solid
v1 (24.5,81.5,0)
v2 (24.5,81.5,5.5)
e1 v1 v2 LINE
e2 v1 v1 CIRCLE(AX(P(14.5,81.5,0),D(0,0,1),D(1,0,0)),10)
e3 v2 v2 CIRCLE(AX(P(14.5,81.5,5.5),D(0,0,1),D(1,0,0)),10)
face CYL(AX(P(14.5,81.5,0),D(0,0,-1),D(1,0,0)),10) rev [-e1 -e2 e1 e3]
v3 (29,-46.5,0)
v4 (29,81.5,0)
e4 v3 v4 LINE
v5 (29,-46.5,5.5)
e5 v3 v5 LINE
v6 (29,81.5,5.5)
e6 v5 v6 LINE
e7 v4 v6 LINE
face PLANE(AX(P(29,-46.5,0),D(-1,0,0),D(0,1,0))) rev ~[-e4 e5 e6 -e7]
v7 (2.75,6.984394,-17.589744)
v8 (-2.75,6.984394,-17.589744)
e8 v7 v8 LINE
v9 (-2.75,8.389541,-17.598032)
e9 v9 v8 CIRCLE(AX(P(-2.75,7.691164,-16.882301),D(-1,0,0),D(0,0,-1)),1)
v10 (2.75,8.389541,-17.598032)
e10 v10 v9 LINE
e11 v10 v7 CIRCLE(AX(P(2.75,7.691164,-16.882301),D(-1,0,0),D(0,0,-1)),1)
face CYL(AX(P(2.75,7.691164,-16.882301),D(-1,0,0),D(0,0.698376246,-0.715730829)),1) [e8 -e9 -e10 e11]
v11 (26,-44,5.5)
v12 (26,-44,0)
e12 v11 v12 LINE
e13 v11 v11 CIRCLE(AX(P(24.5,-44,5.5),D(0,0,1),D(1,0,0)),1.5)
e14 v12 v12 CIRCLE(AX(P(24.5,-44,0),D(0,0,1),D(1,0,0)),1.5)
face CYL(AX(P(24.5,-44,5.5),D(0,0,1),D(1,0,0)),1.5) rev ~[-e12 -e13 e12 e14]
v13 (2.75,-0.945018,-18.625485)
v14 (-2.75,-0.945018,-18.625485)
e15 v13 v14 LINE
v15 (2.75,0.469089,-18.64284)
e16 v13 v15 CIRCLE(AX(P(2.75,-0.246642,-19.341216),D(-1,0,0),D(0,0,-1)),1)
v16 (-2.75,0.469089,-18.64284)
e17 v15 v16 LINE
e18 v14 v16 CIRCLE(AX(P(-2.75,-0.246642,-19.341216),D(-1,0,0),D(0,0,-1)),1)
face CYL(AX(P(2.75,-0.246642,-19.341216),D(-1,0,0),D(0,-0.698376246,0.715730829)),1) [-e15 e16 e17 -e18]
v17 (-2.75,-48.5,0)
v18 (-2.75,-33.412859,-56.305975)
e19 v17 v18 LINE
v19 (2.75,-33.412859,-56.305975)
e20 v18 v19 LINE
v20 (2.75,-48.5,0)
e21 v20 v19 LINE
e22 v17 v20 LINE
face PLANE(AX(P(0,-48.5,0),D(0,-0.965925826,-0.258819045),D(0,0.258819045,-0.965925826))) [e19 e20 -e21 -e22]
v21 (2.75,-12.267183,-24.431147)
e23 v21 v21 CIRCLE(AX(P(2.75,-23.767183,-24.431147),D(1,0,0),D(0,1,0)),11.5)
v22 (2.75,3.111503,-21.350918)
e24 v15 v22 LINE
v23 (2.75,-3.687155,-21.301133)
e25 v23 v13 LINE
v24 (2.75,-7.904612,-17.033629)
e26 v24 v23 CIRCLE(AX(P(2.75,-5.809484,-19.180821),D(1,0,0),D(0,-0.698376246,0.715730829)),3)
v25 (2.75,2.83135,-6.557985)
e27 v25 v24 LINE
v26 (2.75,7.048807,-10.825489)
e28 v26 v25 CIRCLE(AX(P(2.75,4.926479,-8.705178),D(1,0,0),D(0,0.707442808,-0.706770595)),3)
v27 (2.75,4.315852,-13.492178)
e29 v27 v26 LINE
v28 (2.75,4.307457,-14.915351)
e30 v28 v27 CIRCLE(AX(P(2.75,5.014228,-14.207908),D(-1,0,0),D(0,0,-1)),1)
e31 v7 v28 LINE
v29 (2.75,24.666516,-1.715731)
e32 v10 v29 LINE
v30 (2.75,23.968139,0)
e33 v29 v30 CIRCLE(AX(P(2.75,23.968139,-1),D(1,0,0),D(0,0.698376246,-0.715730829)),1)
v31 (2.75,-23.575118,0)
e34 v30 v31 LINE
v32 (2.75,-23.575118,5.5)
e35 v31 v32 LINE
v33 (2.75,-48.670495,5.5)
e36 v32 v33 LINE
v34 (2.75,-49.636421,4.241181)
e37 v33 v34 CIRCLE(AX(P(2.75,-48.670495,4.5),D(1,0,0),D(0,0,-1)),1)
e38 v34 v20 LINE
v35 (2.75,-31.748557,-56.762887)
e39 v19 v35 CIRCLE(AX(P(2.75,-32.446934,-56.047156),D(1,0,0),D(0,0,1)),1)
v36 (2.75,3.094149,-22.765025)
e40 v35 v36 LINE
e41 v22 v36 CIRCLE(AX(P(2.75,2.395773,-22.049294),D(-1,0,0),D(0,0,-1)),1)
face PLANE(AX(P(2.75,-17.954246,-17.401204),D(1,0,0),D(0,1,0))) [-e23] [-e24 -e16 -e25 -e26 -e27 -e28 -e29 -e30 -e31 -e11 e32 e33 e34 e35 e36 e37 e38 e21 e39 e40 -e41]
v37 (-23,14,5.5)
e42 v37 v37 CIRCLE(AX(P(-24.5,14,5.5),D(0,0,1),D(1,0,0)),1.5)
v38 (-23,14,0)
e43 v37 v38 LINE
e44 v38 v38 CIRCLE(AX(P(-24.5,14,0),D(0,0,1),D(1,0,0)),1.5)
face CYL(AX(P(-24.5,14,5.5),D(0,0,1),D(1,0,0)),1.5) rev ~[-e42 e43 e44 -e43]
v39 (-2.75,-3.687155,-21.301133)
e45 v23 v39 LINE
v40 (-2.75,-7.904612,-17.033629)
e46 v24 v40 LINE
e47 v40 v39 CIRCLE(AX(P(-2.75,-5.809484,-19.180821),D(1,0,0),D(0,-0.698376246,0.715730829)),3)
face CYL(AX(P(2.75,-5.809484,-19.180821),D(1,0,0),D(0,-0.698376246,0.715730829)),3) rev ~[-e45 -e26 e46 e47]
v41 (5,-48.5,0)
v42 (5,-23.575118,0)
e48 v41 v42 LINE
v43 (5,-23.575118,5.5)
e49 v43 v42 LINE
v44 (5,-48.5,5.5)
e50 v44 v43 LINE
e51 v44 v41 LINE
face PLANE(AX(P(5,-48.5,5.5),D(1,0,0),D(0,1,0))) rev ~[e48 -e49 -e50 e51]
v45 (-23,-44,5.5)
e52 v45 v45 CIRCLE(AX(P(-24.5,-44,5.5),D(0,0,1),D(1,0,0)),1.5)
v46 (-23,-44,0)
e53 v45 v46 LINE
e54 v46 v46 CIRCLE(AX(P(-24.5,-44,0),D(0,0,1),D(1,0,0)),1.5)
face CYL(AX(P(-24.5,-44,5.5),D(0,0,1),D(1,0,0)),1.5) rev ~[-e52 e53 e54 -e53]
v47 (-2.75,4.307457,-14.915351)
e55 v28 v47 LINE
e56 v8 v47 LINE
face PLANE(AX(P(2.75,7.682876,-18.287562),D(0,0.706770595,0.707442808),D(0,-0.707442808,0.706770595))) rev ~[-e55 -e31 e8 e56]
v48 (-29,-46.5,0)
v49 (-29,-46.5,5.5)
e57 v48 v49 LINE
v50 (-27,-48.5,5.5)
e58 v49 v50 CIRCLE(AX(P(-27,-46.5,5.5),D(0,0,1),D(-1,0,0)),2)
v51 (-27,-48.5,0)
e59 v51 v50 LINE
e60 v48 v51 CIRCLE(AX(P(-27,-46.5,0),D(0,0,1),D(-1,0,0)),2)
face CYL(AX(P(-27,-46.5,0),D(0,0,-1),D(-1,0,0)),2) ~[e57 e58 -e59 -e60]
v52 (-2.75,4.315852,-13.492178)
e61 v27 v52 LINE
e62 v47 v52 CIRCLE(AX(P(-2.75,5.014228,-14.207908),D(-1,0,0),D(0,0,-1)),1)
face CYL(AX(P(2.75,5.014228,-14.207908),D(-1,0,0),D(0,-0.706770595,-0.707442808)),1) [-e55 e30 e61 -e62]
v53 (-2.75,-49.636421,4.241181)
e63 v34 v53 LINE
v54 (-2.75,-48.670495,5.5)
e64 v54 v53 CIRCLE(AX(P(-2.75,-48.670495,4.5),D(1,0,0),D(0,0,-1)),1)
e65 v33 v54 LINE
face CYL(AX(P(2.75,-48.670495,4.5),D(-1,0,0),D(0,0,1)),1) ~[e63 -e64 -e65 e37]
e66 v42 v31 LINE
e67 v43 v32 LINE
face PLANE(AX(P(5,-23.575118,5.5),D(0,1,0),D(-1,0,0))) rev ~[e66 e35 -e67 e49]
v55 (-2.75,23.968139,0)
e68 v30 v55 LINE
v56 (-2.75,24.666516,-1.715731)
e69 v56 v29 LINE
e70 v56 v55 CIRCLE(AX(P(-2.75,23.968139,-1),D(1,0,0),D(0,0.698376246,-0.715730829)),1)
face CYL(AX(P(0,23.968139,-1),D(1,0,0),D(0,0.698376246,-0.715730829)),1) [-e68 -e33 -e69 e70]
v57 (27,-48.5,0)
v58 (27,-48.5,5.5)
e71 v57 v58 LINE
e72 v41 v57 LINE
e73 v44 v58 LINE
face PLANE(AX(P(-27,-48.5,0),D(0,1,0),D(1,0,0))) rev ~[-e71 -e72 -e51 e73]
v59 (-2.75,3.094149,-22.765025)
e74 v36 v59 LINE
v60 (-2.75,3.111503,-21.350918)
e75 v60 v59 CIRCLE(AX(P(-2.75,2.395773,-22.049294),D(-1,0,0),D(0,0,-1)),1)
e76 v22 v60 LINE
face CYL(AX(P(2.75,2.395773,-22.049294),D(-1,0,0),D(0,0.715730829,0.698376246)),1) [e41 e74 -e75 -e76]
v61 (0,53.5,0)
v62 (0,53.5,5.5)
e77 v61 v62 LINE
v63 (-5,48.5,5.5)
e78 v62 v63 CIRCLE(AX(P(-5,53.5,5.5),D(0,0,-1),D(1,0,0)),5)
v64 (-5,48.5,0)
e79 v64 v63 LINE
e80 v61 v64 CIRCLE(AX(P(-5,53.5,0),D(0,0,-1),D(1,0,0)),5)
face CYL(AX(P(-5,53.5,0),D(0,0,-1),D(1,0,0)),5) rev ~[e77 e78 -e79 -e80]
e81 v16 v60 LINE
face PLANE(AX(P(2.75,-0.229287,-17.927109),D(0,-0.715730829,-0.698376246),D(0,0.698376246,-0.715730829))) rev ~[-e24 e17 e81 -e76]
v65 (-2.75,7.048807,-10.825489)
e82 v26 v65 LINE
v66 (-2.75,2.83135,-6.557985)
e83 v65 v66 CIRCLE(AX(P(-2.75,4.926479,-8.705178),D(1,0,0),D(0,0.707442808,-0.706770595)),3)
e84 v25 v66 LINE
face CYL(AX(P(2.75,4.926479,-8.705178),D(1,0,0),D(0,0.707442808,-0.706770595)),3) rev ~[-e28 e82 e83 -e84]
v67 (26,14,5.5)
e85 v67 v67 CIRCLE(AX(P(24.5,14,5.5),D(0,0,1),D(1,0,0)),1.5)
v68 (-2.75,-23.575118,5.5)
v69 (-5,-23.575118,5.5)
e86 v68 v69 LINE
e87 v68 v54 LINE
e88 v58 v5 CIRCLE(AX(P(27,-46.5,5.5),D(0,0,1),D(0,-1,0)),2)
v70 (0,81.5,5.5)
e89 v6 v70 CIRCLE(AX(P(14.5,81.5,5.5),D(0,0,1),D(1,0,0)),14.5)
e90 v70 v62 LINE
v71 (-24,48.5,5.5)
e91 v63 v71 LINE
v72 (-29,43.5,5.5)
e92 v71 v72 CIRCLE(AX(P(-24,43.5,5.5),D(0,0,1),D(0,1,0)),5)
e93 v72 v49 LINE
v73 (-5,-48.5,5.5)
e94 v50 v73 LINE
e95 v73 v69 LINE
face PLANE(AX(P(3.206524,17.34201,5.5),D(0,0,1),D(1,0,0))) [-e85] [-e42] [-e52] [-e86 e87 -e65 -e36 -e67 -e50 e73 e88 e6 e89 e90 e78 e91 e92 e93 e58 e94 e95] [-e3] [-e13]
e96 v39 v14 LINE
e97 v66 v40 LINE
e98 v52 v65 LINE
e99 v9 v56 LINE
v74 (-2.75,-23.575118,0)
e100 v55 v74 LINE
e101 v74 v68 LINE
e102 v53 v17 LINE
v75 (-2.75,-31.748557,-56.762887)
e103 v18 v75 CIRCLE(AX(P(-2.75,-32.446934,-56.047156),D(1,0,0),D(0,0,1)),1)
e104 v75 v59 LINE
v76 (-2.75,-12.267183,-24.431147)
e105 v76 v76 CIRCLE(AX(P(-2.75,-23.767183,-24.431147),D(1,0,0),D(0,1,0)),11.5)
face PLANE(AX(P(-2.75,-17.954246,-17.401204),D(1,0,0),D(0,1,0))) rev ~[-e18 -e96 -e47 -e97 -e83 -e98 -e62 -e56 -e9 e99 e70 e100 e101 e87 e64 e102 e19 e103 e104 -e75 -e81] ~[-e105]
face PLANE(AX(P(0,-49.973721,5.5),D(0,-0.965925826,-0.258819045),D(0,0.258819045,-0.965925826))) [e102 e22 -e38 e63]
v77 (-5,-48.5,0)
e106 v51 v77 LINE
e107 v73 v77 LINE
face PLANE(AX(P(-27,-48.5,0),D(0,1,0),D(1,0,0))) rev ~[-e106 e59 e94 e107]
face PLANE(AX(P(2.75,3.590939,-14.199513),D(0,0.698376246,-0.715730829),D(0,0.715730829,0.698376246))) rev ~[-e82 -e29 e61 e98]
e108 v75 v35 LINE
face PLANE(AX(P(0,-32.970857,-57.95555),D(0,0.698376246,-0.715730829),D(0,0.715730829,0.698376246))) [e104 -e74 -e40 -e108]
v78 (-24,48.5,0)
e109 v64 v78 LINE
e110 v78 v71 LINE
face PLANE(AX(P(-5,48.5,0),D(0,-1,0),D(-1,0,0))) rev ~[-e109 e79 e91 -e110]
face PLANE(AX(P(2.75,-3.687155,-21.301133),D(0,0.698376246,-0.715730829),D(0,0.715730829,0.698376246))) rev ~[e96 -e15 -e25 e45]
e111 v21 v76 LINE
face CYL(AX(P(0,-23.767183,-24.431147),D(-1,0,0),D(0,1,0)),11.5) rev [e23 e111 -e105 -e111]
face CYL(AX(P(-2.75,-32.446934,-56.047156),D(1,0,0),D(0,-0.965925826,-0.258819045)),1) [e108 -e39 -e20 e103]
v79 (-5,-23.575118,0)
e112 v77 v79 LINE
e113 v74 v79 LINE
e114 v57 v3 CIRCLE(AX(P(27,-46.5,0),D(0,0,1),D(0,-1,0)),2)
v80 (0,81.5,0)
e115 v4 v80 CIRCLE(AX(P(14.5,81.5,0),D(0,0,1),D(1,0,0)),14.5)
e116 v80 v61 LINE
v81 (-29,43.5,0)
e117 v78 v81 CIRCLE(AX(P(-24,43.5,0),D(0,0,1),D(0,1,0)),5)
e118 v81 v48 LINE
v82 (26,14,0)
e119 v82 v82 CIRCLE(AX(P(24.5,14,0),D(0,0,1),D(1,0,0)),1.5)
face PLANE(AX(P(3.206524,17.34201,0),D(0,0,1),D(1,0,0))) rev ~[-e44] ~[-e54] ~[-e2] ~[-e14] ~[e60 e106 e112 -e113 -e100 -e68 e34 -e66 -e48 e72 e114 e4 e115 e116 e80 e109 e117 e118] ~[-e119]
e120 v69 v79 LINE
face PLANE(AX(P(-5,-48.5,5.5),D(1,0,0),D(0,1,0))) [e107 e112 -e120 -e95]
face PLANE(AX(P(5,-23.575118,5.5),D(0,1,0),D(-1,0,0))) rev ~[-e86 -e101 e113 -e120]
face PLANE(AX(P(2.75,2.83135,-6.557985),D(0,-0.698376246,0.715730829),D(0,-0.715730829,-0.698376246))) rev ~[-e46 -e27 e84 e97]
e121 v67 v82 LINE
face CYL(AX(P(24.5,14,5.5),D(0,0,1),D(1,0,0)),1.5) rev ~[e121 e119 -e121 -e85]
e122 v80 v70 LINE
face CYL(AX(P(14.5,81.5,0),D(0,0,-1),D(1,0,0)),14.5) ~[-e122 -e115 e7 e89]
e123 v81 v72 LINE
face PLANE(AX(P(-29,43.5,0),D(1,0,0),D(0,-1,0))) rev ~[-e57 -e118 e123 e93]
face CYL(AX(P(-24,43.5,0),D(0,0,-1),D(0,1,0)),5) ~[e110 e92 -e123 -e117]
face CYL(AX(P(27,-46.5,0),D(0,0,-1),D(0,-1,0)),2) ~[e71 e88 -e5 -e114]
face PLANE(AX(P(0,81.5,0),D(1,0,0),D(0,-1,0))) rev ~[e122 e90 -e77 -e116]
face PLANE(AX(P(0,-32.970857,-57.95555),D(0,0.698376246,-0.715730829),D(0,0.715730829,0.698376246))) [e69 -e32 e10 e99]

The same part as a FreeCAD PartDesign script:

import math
import FreeCAD as App
import Part
import Sketcher
Q = App.Units.Quantity


def edges_at(feature, points):
    """Names of the edges that pass closest to the given points."""
    edges = feature.Shape.Edges
    near = lambda p: min(range(len(edges)), key=lambda i: edges[i].distToShape(Part.Vertex(*p))[0])
    return sorted({f"Edge{near(p) + 1}" for p in points})


def add_polygon(sketch, points):
    """Adds a closed chain of lines whose ends are joined by coincident constraints."""
    first, n = sketch.GeometryCount, len(points)
    for a, b in zip(points, points[1:] + points[:1]):
        sketch.addGeometry(Part.LineSegment(App.Vector(*a, 0), App.Vector(*b, 0)), False)
    for i in range(n):
        sketch.addConstraint(Sketcher.Constraint("Coincident", first + i, 2, first + (i + 1) % n, 1))

doc = App.newDocument("Part")
body = doc.addObject("PartDesign::Body", "Body")

# Sketch on XY plane
sketch1 = body.newObject("Sketcher::SketchObject", "Sketch")
sketch1.AttachmentSupport = (doc.getObject("XY_Plane"), [""])
sketch1.MapMode = "FlatFace"
sketch1.addGeometry([
    Part.LineSegment(App.Vector(-27, -48.5, 0), App.Vector(27, -48.5, 0)),  # 0
    Part.ArcOfCircle(Part.Circle(App.Vector(27, -46.5, 0), App.Vector(0, 0, 1), 2), math.radians(-90), math.radians(0)),  # 1
    Part.LineSegment(App.Vector(29, -46.5, 0), App.Vector(29, 81.5, 0)),  # 2
    Part.ArcOfCircle(Part.Circle(App.Vector(14.5, 81.5, 0), App.Vector(0, 0, 1), 14.5), math.radians(0), math.radians(180)),  # 3
    Part.LineSegment(App.Vector(0, 81.5, 0), App.Vector(0, 53.5, 0)),  # 4
    Part.ArcOfCircle(Part.Circle(App.Vector(-5, 53.5, 0), App.Vector(0, 0, 1), 5), math.radians(-90), math.radians(0)),  # 5
    Part.LineSegment(App.Vector(-5, 48.5, 0), App.Vector(-24, 48.5, 0)),  # 6
    Part.ArcOfCircle(Part.Circle(App.Vector(-24, 43.5, 0), App.Vector(0, 0, 1), 5), math.radians(90), math.radians(180)),  # 7
    Part.LineSegment(App.Vector(-29, 43.5, 0), App.Vector(-29, -46.5, 0)),  # 8
    Part.ArcOfCircle(Part.Circle(App.Vector(-27, -46.5, 0), App.Vector(0, 0, 1), 2), math.radians(180), math.radians(270)),  # 9
    Part.Circle(App.Vector(14.5, 81.5, 0), App.Vector(0, 0, 1), 10),  # 10
], False)
sketch1.addConstraint([
    Sketcher.Constraint("Tangent", 0, 2, 1, 1),
    Sketcher.Constraint("Tangent", 1, 2, 2, 1),
    Sketcher.Constraint("Tangent", 2, 2, 3, 1),
    Sketcher.Constraint("Tangent", 3, 2, 4, 1),
    Sketcher.Constraint("Tangent", 4, 2, 5, 2),
    Sketcher.Constraint("Tangent", 5, 1, 6, 1),
    Sketcher.Constraint("Tangent", 6, 2, 7, 1),
    Sketcher.Constraint("Tangent", 7, 2, 8, 1),
    Sketcher.Constraint("Tangent", 8, 2, 9, 1),
    Sketcher.Constraint("Tangent", 9, 2, 0, 1),
    Sketcher.Constraint("Horizontal", 0),
    Sketcher.Constraint("Vertical", 2),
    Sketcher.Constraint("Vertical", 4),
    Sketcher.Constraint("Horizontal", 6),
    Sketcher.Constraint("Vertical", 8),
    Sketcher.Constraint("Coincident", 10, 3, 3, 3),
    Sketcher.Constraint("Equal", 5, 7),
    Sketcher.Constraint("Equal", 1, 9),
    Sketcher.Constraint("PointOnObject", 3, 2, -2),
    Sketcher.Constraint("Diameter", 10, Q("20 mm")),
    Sketcher.Constraint("Radius", 1, Q("2 mm")),
    Sketcher.Constraint("Radius", 5, Q("5 mm")),
    Sketcher.Constraint("Radius", 3, Q("14.5 mm")),
    Sketcher.Constraint("DistanceX", 0, 1, 0, 2, Q("54 mm")),
    Sketcher.Constraint("DistanceY", 2, 1, 2, 2, Q("128 mm")),
    Sketcher.Constraint("DistanceY", 4, 2, 4, 1, Q("28 mm")),
    Sketcher.Constraint("DistanceY", 1, 3, -1, 1, Q("46.5 mm")),
])
pad1 = body.newObject("PartDesign::Pad", "Pad")
pad1.Profile = sketch1
pad1.Length = 5.5

# Sketch on XY plane
sketch2 = body.newObject("Sketcher::SketchObject", "Sketch001")
sketch2.AttachmentSupport = (doc.getObject("XY_Plane"), [""])
sketch2.MapMode = "FlatFace"
sketch2.AttachmentOffset = App.Placement(App.Vector(0, 0, 5.5), App.Rotation())
sketch2.addGeometry([
    Part.Circle(App.Vector(-24.5, 14, 0), App.Vector(0, 0, 1), 1.5),
    Part.Circle(App.Vector(24.5, 14, 0), App.Vector(0, 0, 1), 1.5),
    Part.Circle(App.Vector(24.5, -44, 0), App.Vector(0, 0, 1), 1.5),
    Part.Circle(App.Vector(-24.5, -44, 0), App.Vector(0, 0, 1), 1.5),
], False)
sketch2.addConstraint([
    Sketcher.Constraint("Equal", 0, 1),
    Sketcher.Constraint("Equal", 1, 2),
    Sketcher.Constraint("Equal", 2, 3),
    Sketcher.Constraint("Symmetric", 0, 3, 1, 3, -2),
    Sketcher.Constraint("Symmetric", 2, 3, 3, 3, -2),
    Sketcher.Constraint("Vertical", 1, 3, 2, 3),
    Sketcher.Constraint("Diameter", 0, Q("3 mm")),
    Sketcher.Constraint("DistanceY", -1, 1, 0, 3, Q("14 mm")),
    Sketcher.Constraint("DistanceY", 2, 3, -1, 1, Q("44 mm")),
    Sketcher.Constraint("DistanceX", 0, 3, 1, 3, Q("49 mm")),
])
pocket1 = body.newObject("PartDesign::Pocket", "Pocket")
pocket1.Profile = sketch2
pocket1.Type = "ThroughAll"

# Sketch on XY plane
sketch3 = body.newObject("Sketcher::SketchObject", "Sketch002")
sketch3.AttachmentSupport = (doc.getObject("XY_Plane"), [""])
sketch3.MapMode = "FlatFace"
sketch3.AttachmentOffset = App.Placement(App.Vector(0, 0, 5.5), App.Rotation())
add_polygon(sketch3, [(5, -48), (5, -24), (-5, -24), (-5, -48)])  # lines 0-3
sketch3.addConstraint([
    Sketcher.Constraint("Vertical", 0),
    Sketcher.Constraint("Horizontal", 1),
    Sketcher.Constraint("Vertical", 2),
    Sketcher.Constraint("Horizontal", 3),
    Sketcher.Constraint("DistanceX", 1, 2, 1, 1, Q("10 mm")),
    Sketcher.Constraint("DistanceX", -1, 1, 0, 2, Q("5 mm")),
    Sketcher.Constraint("DistanceY", 2, 2, -1, 1, Q("48.5 mm")),
    Sketcher.Constraint("DistanceY", 0, 1, 0, 2, Q("24.924882 mm")),
])
pocket2 = body.newObject("PartDesign::Pocket", "Pocket001")
pocket2.Profile = sketch3
pocket2.Type = "ThroughAll"

# Sketch on YZ plane
sketch4 = body.newObject("Sketcher::SketchObject", "Sketch003")
sketch4.AttachmentSupport = (doc.getObject("YZ_Plane"), [""])
sketch4.MapMode = "FlatFace"
sketch4.addGeometry([
    Part.LineSegment(App.Vector(-50, 5.5, 0), App.Vector(-48.5, 0, 0)),  # 0
    Part.LineSegment(App.Vector(-48.5, 0, 0), App.Vector(-33, -58, 0)),  # 1
    Part.LineSegment(App.Vector(-33, -58, 0), App.Vector(24.7, -1.7, 0)),  # 2
    Part.ArcOfCircle(Part.Circle(App.Vector(24, -1, 0), App.Vector(0, 0, 1), 1), math.radians(-46), math.radians(90)),  # 3
    Part.LineSegment(App.Vector(24, 0, 0), App.Vector(-23.6, 0, 0)),  # 4
    Part.LineSegment(App.Vector(-23.6, 0, 0), App.Vector(-23.6, 5.5, 0)),  # 5
    Part.LineSegment(App.Vector(-23.6, 5.5, 0), App.Vector(-50, 5.5, 0)),  # 6
    Part.Circle(App.Vector(-23.8, -24.4, 0), App.Vector(0, 0, 1), 11.5),  # 7
], False)
sketch4.addConstraint([
    Sketcher.Constraint("Coincident", 0, 2, 1, 1),
    Sketcher.Constraint("Coincident", 1, 2, 2, 1),
    Sketcher.Constraint("Tangent", 2, 2, 3, 1),
    Sketcher.Constraint("Tangent", 3, 2, 4, 1),
    Sketcher.Constraint("Coincident", 4, 2, 5, 1),
    Sketcher.Constraint("Coincident", 5, 2, 6, 1),
    Sketcher.Constraint("Coincident", 6, 2, 0, 1),
    Sketcher.Constraint("Horizontal", 4),
    Sketcher.Constraint("Vertical", 5),
    Sketcher.Constraint("Horizontal", 6),
    Sketcher.Constraint("PointOnObject", 0, 2, -1),
    Sketcher.Constraint("PointOnObject", 3, 2, -1),
    Sketcher.Constraint("Parallel", 0, 1),
    Sketcher.Constraint("Diameter", 7, Q("23 mm")),
    Sketcher.Constraint("Radius", 3, Q("1 mm")),
    Sketcher.Constraint("Angle", 0, Q("-75 deg")),
    Sketcher.Constraint("Distance", 1, Q("60 mm")),
    Sketcher.Constraint("DistanceY", 5, 1, 5, 2, Q("5.5 mm")),
    Sketcher.Constraint("DistanceX", 0, 2, -1, 1, Q("48.5 mm")),
    Sketcher.Constraint("Distance", 2, Q("80.529398 mm")),
    Sketcher.Constraint("DistanceX", 7, 3, 2, 2, Q("48.433698 mm")),
    Sketcher.Constraint("DistanceX", 4, 2, 4, 1, Q("47.543257 mm")),
    Sketcher.Constraint("DistanceY", 7, 3, -1, 1, Q("24.431147 mm")),
])
pad2 = body.newObject("PartDesign::Pad", "Pad001")
pad2.Profile = sketch4
pad2.Length = 5.5
pad2.Midplane = True
doc.recompute()

fillet = body.newObject("PartDesign::Fillet", "Fillet")
fillet.Base = (pad2, edges_at(pad2, [(0, -49.974, 5.5), (0, -32.971, -57.956)]))
fillet.Radius = 1

# Sketch on YZ plane
sketch5 = body.newObject("Sketcher::SketchObject", "Sketch004")
sketch5.AttachmentSupport = (doc.getObject("YZ_Plane"), [""])
sketch5.MapMode = "FlatFace"
sketch5.AttachmentOffset = App.Placement(App.Vector(0, 0, 2.75), App.Rotation())
sketch5.addGeometry([
    Part.ArcOfCircle(Part.Circle(App.Vector(-5.8, -19.2, 0), App.Vector(0, 0, 1), 3), math.radians(134), math.radians(315)),  # 0
    Part.LineSegment(App.Vector(-3.7, -21.3, 0), App.Vector(-0.2, -17.9, 0)),  # 1
    Part.LineSegment(App.Vector(-0.2, -17.9, 0), App.Vector(3.8, -22.1, 0)),  # 2
    Part.LineSegment(App.Vector(3.8, -22.1, 0), App.Vector(7.7, -18.3, 0)),  # 3
    Part.LineSegment(App.Vector(7.7, -18.3, 0), App.Vector(3.6, -14.2, 0)),  # 4
    Part.LineSegment(App.Vector(3.6, -14.2, 0), App.Vector(7, -10.8, 0)),  # 5
    Part.ArcOfCircle(Part.Circle(App.Vector(4.9, -8.7, 0), App.Vector(0, 0, 1), 3), math.radians(-45), math.radians(134)),  # 6
    Part.LineSegment(App.Vector(2.8, -6.6, 0), App.Vector(-7.9, -17, 0)),  # 7
], False)
sketch5.addConstraint([
    Sketcher.Constraint("Coincident", 0, 2, 1, 1),
    Sketcher.Constraint("Coincident", 1, 2, 2, 1),
    Sketcher.Constraint("Coincident", 2, 2, 3, 1),
    Sketcher.Constraint("Coincident", 3, 2, 4, 1),
    Sketcher.Constraint("Coincident", 4, 2, 5, 1),
    Sketcher.Constraint("Coincident", 5, 2, 6, 1),
    Sketcher.Constraint("Tangent", 6, 2, 7, 1),
    Sketcher.Constraint("Tangent", 7, 2, 0, 1),
    Sketcher.Constraint("Equal", 0, 6),
    Sketcher.Constraint("Perpendicular", 1, 2),
    Sketcher.Constraint("Perpendicular", 2, 3),
    Sketcher.Constraint("Parallel", 3, 5),
    Sketcher.Constraint("Parallel", 5, 7),
    Sketcher.Constraint("Equal", 1, 5),
    Sketcher.Constraint("Radius", 0, Q("3 mm")),
    Sketcher.Constraint("Distance", 7, Q("15 mm")),
    Sketcher.Constraint("DistanceX", 2, 2, 6, 3, Q("1.116599 mm")),
    Sketcher.Constraint("Distance", 1, Q("4.831241 mm")),
    Sketcher.Constraint("DistanceY", 0, 3, -1, 1, Q("19.180821 mm")),
    Sketcher.Constraint("DistanceX", -1, 1, 6, 3, Q("4.926479 mm")),
    Sketcher.Constraint("DistanceY", 1, 2, -1, 1, Q("17.927109 mm")),
    Sketcher.Constraint("DistanceY", 2, 2, -1, 1, Q("22.066648 mm")),
    Sketcher.Constraint("DistanceX", -1, 1, 4, 2, Q("3.590939 mm")),
    Sketcher.Constraint("DistanceX", 0, 2, 3, 2, Q("11.370031 mm")),
])
pocket3 = body.newObject("PartDesign::Pocket", "Pocket002")
pocket3.Profile = sketch5
pocket3.Type = "ThroughAll"
doc.recompute()

fillet2 = body.newObject("PartDesign::Fillet", "Fillet001")
fillet2.Base = (pocket3, edges_at(pocket3, [
    (0, -0.229, -17.927),
    (0, 3.591, -14.2),
    (0, 7.683, -18.288),
    (0, 3.81, -22.067),
]))
fillet2.Radius = 1

doc.recompute()
